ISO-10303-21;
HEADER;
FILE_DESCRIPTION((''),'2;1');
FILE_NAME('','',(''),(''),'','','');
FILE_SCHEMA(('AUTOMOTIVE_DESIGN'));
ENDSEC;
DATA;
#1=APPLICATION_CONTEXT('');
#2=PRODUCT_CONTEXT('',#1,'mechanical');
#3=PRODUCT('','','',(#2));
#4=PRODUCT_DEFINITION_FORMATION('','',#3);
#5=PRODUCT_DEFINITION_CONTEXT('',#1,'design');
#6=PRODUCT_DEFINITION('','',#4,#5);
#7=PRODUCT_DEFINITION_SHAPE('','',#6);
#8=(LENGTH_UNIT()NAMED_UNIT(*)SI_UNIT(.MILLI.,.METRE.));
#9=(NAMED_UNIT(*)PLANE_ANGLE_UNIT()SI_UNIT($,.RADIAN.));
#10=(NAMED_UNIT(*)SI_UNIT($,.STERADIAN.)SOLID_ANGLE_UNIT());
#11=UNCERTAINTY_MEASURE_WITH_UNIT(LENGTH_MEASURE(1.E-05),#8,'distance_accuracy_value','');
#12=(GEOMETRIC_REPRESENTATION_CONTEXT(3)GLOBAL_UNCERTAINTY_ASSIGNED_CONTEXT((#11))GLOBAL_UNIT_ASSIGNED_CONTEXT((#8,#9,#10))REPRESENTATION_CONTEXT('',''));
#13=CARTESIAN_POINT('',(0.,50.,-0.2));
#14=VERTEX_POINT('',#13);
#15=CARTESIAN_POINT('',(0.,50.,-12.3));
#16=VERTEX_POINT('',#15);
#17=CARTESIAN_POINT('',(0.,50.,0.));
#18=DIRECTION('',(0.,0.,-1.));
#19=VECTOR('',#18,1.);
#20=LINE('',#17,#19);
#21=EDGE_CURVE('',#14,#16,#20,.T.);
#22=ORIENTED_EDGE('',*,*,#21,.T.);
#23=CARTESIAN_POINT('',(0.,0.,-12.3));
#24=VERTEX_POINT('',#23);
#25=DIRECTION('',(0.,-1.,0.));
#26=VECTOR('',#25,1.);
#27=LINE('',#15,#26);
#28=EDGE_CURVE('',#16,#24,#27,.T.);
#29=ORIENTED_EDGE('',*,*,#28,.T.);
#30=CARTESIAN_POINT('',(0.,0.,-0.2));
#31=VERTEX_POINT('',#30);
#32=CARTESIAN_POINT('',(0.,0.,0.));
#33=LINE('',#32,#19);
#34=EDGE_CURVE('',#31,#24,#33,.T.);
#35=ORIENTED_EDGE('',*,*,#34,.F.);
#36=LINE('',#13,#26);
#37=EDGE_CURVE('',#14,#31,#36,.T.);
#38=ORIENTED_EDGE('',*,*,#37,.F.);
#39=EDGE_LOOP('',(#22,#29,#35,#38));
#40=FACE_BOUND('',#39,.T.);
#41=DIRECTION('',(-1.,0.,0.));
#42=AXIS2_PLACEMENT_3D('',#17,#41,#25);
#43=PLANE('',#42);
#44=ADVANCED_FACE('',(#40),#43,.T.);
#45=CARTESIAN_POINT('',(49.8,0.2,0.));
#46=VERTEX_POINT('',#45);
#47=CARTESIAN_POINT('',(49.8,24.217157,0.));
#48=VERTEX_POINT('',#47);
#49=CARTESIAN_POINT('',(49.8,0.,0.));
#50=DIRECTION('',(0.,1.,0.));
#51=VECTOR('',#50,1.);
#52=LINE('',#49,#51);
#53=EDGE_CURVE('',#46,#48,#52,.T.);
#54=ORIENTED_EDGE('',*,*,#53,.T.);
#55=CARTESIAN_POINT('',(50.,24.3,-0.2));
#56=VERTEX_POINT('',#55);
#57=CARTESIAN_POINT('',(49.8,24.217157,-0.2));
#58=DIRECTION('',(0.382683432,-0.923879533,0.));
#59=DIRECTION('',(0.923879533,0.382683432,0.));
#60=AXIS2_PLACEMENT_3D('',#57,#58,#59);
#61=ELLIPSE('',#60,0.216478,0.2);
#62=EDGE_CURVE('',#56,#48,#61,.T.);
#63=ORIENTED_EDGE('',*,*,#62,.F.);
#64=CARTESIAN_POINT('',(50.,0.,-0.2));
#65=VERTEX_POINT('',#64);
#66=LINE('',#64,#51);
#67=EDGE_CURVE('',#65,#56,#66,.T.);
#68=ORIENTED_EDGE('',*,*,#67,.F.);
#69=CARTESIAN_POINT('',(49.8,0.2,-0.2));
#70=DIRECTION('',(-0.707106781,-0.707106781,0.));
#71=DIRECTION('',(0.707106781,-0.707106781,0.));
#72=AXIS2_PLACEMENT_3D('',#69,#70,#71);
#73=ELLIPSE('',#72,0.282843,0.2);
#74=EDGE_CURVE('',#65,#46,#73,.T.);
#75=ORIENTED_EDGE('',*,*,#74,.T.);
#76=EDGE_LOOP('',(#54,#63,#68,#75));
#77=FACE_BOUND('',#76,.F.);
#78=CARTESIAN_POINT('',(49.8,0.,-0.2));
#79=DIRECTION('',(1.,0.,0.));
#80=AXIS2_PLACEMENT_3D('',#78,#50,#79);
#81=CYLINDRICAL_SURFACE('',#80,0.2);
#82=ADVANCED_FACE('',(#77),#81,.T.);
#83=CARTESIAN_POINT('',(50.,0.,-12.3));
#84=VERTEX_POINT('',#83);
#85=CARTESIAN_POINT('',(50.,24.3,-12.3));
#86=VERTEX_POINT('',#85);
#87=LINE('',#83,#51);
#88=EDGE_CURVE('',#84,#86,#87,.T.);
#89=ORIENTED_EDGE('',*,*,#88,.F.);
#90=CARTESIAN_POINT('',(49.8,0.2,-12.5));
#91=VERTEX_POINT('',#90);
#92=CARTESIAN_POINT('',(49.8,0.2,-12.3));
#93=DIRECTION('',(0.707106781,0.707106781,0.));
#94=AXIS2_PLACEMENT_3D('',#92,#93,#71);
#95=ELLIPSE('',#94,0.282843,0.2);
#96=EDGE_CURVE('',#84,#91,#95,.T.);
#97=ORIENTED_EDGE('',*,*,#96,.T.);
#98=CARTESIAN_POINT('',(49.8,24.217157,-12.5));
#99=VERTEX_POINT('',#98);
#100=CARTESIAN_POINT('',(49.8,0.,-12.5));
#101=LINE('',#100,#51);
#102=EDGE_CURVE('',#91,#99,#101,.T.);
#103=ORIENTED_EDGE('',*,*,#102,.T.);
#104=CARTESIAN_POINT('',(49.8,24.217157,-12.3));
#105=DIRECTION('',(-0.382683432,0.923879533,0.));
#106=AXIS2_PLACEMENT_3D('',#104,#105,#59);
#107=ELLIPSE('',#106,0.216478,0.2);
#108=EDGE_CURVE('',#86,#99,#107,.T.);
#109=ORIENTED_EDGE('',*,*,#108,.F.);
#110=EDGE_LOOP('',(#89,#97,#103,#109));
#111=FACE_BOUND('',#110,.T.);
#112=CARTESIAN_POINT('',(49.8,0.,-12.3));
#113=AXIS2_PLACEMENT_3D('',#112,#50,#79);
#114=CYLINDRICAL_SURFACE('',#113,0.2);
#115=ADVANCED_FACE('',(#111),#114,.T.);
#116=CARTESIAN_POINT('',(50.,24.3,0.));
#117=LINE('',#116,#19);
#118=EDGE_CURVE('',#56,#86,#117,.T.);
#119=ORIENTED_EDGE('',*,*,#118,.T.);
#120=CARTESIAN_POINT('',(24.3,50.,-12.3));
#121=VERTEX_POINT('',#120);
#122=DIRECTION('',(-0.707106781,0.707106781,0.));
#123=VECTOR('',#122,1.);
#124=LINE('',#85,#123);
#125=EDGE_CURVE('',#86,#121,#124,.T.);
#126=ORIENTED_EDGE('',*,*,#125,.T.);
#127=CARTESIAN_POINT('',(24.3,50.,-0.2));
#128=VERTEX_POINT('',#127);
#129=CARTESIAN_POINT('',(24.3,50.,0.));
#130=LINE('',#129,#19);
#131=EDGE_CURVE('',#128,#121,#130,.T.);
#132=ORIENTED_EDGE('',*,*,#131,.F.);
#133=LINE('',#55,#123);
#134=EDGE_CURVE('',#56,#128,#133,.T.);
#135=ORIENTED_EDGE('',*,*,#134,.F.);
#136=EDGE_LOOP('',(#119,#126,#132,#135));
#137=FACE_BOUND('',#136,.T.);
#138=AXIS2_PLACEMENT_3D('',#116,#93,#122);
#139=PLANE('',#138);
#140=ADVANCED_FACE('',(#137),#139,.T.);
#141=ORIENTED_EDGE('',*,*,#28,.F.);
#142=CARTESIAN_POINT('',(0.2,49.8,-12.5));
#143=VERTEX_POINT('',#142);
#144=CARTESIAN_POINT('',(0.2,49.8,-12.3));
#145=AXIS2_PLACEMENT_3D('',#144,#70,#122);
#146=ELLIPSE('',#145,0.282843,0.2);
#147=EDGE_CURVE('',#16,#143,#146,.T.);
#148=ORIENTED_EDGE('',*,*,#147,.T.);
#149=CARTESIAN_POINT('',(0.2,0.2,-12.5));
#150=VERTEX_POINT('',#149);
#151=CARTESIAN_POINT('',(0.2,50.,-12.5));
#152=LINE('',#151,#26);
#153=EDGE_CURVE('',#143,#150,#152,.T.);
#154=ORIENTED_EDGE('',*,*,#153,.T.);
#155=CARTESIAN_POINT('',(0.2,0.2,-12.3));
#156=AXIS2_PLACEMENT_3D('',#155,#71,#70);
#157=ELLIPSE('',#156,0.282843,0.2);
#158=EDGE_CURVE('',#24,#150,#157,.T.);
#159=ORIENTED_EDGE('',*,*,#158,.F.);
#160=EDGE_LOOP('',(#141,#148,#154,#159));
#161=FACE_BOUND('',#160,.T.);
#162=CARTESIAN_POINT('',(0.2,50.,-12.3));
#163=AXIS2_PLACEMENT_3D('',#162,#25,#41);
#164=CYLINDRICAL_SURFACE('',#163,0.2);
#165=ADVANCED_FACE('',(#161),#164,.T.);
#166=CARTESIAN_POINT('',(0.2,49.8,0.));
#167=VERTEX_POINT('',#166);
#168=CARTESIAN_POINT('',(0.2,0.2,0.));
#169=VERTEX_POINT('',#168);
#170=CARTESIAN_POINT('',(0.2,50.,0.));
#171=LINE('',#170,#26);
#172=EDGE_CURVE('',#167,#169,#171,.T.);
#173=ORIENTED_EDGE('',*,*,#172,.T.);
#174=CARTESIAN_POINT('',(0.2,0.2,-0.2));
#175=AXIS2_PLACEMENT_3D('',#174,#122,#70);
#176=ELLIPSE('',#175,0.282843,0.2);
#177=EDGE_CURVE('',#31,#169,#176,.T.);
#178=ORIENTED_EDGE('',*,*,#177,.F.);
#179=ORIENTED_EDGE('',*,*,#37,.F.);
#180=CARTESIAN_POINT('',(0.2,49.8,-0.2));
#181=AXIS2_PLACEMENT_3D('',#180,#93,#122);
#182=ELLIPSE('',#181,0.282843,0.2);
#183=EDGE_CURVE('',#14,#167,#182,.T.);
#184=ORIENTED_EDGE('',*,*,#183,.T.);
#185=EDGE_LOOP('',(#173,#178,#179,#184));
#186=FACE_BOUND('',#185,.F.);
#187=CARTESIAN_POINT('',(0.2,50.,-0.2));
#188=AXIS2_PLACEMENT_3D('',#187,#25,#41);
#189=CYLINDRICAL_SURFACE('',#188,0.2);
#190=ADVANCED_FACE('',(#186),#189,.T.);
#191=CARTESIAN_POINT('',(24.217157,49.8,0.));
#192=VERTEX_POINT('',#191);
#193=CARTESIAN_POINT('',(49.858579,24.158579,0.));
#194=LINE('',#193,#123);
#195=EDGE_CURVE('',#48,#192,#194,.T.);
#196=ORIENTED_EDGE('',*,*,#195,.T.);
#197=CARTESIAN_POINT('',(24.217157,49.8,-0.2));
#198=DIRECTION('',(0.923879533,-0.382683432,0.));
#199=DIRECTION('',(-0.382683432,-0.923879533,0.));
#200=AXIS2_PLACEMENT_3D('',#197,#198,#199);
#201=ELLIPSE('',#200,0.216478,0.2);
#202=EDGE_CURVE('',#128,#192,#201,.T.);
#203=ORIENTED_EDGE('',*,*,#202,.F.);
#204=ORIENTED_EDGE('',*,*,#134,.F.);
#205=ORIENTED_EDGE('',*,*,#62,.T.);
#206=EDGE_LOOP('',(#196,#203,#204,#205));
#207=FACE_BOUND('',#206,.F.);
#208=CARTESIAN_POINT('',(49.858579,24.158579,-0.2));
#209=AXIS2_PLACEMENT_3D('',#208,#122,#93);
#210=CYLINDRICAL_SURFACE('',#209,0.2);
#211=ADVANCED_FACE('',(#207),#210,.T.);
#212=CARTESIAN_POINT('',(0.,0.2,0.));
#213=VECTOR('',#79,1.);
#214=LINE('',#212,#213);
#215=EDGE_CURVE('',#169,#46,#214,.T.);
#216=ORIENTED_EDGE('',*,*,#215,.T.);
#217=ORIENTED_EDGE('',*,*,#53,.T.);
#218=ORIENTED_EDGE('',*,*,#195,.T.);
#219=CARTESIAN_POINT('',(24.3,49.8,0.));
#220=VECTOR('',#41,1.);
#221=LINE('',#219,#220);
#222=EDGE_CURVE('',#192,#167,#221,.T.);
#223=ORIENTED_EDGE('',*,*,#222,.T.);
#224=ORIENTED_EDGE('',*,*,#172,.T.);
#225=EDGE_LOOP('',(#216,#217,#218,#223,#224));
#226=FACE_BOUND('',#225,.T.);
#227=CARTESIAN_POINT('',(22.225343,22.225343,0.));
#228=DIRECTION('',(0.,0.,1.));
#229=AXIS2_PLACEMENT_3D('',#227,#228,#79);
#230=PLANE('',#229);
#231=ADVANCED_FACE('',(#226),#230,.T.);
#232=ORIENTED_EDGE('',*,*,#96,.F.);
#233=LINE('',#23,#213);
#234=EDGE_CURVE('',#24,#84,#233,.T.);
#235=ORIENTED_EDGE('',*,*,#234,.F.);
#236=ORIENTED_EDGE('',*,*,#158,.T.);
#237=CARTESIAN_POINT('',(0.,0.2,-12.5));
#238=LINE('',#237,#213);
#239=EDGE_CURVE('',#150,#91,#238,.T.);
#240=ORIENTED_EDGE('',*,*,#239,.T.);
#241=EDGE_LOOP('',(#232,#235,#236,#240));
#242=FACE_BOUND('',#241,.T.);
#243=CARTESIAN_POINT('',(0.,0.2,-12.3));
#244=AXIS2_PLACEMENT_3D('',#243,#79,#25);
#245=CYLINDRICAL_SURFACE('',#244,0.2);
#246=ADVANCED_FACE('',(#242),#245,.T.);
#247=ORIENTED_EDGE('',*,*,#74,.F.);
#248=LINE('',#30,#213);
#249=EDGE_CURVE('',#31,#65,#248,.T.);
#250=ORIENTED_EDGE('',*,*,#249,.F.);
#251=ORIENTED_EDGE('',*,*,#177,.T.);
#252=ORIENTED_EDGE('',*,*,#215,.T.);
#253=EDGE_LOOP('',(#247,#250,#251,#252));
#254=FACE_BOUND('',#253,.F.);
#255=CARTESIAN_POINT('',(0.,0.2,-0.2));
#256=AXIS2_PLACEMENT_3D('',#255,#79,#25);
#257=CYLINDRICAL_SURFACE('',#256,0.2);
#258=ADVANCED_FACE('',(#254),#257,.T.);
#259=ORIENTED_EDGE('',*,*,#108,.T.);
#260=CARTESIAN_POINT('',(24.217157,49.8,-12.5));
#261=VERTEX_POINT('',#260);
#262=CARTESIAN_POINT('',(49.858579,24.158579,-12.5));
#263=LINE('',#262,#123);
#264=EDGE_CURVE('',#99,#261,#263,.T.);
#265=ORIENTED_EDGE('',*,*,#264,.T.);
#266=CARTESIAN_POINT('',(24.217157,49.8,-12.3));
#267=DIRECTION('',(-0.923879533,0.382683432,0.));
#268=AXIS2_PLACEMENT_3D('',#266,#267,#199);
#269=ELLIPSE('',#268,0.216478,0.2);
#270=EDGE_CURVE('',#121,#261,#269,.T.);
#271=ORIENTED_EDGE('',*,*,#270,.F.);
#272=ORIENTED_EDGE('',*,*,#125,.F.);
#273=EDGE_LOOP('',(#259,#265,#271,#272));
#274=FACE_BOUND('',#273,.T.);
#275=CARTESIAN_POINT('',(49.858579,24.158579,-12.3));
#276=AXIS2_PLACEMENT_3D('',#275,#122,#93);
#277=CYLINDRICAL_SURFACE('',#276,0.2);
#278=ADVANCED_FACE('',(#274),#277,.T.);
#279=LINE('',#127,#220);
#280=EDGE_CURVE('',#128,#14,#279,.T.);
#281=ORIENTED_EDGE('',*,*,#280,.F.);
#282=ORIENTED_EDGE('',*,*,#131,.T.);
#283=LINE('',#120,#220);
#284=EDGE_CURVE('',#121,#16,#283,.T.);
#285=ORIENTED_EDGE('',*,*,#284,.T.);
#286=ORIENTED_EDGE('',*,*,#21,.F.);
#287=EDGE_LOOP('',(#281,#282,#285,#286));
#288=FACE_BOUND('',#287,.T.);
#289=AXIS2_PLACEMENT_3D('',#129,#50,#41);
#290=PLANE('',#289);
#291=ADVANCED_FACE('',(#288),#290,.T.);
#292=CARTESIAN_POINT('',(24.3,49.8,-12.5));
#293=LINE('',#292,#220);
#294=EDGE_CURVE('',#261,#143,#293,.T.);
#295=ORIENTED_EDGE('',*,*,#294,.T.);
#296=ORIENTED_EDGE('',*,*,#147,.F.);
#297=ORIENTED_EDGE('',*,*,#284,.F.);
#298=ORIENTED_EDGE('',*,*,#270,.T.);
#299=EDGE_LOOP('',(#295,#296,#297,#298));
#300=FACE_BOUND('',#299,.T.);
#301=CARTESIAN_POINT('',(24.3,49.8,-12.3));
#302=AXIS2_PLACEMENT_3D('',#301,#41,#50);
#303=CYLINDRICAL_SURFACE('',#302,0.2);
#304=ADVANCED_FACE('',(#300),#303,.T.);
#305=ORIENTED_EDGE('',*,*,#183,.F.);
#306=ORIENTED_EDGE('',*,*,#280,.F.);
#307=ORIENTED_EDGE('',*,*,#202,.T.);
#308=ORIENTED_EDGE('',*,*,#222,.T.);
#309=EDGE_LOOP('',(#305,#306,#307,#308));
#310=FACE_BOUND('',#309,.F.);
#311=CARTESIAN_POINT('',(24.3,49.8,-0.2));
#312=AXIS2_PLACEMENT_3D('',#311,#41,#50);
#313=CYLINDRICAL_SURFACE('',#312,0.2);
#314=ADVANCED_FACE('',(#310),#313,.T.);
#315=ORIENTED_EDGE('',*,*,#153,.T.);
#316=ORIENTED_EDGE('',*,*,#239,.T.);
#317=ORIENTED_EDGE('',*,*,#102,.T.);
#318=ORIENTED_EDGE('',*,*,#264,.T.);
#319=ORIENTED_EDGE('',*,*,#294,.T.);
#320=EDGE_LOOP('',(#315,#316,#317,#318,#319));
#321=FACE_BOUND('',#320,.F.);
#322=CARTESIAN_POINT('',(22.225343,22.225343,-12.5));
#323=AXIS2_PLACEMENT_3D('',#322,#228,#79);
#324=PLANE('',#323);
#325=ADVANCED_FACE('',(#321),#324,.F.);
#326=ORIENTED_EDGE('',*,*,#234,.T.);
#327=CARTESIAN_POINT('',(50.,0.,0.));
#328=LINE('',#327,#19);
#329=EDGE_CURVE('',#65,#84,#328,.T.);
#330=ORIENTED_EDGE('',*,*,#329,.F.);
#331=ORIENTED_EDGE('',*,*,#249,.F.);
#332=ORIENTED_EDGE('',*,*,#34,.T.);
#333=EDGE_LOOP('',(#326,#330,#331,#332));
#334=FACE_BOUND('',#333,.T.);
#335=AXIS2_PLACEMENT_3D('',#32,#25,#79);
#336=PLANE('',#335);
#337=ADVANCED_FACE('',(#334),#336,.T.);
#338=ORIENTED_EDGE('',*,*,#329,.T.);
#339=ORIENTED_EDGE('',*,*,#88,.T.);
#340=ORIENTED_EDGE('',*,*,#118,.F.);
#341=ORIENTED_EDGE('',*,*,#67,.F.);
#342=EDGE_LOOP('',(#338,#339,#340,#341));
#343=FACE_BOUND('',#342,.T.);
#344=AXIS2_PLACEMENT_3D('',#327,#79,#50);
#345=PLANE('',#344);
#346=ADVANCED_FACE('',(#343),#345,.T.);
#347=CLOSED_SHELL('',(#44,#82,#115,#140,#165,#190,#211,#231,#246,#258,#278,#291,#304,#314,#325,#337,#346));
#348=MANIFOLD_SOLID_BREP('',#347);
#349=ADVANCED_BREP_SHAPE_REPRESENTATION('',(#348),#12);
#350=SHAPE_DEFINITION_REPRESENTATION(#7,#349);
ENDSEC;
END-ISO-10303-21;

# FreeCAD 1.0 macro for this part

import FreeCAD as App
import Part
import Sketcher
from FreeCAD import Vector


def edges_at(feature, points):
    """Names of the edges that pass closest to the given points."""
    edges = feature.Shape.Edges
    near = lambda p: min(range(len(edges)), key=lambda i: edges[i].distToShape(Part.Vertex(*p))[0])
    return sorted({f"Edge{near(p) + 1}" for p in points})

doc = App.newDocument("Part")
params = doc.addObject("Spreadsheet::Sheet", "Params")
for row, (alias, value) in enumerate([
    ("sketch1_width", "50 mm"),
    ("sketch1_width2", "24.3 mm"),
    ("pad1_length", "12.5 mm"),
    ("fillet_radius", "0.2 mm"),
], start=1):
    params.set(f"A{row}", alias)
    params.set(f"B{row}", "=" + value)
    params.setAlias(f"B{row}", alias)

body = doc.addObject("PartDesign::Body", "Body")

# Sketch on XY plane
sketch1 = doc.addObject("Sketcher::SketchObject", "Sketch")
body.addObject(sketch1)
sketch1.AttachmentSupport = (doc.XY_Plane, [""])
sketch1.MapMode = "FlatFace"
sketch1.addGeometry(Part.LineSegment(Vector(0, 50, 0), Vector(0, 0, 0)), False)
sketch1.addGeometry(Part.LineSegment(Vector(0, 0, 0), Vector(50, 0, 0)), False)
sketch1.addGeometry(Part.LineSegment(Vector(50, 0, 0), Vector(50, 24, 0)), False)
sketch1.addGeometry(Part.LineSegment(Vector(50, 24, 0), Vector(24, 50, 0)), False)
sketch1.addGeometry(Part.LineSegment(Vector(24, 50, 0), Vector(0, 50, 0)), False)
sketch1.addConstraint(Sketcher.Constraint("Coincident", 0, 2, 1, 1))
sketch1.addConstraint(Sketcher.Constraint("Coincident", 1, 2, 2, 1))
sketch1.addConstraint(Sketcher.Constraint("Coincident", 2, 2, 3, 1))
sketch1.addConstraint(Sketcher.Constraint("Coincident", 3, 2, 4, 1))
sketch1.addConstraint(Sketcher.Constraint("Coincident", 4, 2, 0, 1))
sketch1.addConstraint(Sketcher.Constraint("Vertical", 0))
sketch1.addConstraint(Sketcher.Constraint("Horizontal", 1))
sketch1.addConstraint(Sketcher.Constraint("Vertical", 2))
sketch1.addConstraint(Sketcher.Constraint("Horizontal", 4))
sketch1.addConstraint(Sketcher.Constraint("Coincident", 0, 2, -1, 1))
sketch1.addConstraint(Sketcher.Constraint("Equal", 1, 0))
sketch1.addConstraint(Sketcher.Constraint("Equal", 4, 2))
sketch1.addConstraint(Sketcher.Constraint("DistanceX", 1, 1, 1, 2, 50.0))
sketch1.addConstraint(Sketcher.Constraint("DistanceX", 4, 2, 4, 1, 24.3))
sketch1.setExpression("Constraints[12]", "Params.sketch1_width")
sketch1.setExpression("Constraints[13]", "Params.sketch1_width2")
pad1 = doc.addObject("PartDesign::Pad", "Pad")
body.addObject(pad1)
pad1.Profile = sketch1
pad1.setExpression("Length", "Params.pad1_length")
pad1.Reversed = True
doc.recompute()

fillet = doc.addObject("PartDesign::Fillet", "Fillet")
body.addObject(fillet)
fillet.Base = (pad1, edges_at(pad1, [
    (12.15, 50, 0),
    (0, 25, 0),
    (25, 0, 0),
    (50, 12.15, 0),
    (37.15, 37.15, 0),
    (12.15, 50, -12.5),
    (0, 25, -12.5),
    (25, 0, -12.5),
    (50, 12.15, -12.5),
    (37.15, 37.15, -12.5),
]))
fillet.setExpression("Radius", "Params.fillet_radius")

doc.recompute()
